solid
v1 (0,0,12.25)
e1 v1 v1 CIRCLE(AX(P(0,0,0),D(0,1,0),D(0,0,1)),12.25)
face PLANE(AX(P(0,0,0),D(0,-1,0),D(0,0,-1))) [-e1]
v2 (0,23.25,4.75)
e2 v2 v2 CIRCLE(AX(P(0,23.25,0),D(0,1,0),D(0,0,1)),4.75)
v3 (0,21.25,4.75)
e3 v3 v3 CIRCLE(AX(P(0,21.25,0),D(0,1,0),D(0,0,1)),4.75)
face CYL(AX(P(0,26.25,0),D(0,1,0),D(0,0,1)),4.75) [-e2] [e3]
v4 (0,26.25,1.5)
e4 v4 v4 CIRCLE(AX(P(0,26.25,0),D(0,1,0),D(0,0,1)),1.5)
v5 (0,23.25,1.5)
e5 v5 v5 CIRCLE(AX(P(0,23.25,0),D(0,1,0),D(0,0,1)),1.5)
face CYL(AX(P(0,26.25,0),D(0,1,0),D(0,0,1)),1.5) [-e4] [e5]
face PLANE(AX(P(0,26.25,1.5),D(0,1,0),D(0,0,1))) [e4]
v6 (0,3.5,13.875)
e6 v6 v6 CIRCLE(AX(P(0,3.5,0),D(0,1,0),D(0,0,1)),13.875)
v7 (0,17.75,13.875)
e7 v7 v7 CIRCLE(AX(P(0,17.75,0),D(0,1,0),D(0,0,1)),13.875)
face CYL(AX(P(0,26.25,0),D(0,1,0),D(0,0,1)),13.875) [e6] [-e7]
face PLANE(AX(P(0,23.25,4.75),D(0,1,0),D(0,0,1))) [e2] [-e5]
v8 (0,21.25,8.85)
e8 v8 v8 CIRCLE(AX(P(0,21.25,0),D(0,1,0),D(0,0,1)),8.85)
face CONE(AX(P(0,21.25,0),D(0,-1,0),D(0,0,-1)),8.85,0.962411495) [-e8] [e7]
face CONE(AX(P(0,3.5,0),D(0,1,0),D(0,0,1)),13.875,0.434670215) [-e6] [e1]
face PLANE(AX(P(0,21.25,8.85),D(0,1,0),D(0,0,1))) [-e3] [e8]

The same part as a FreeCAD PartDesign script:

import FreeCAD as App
import Part
import Sketcher

doc = App.newDocument("Part")
body = doc.addObject("PartDesign::Body", "Body")

# Sketch on YZ plane
sketch1 = doc.addObject("Sketcher::SketchObject", "Sketch")
body.addObject(sketch1)
sketch1.AttachmentSupport = (doc.YZ_Plane, [""])
sketch1.MapMode = "FlatFace"
sketch1.addGeometry([
    Part.LineSegment(App.Vector(0, 12.2, 0), App.Vector(0, 0, 0)),  # 0
    Part.LineSegment(App.Vector(0, 0, 0), App.Vector(26.2, 0, 0)),  # 1
    Part.LineSegment(App.Vector(26.2, 0, 0), App.Vector(26.2, 1.5, 0)),  # 2
    Part.LineSegment(App.Vector(26.2, 1.5, 0), App.Vector(23.2, 1.5, 0)),  # 3
    Part.LineSegment(App.Vector(23.2, 1.5, 0), App.Vector(23.2, 4.8, 0)),  # 4
    Part.LineSegment(App.Vector(23.2, 4.8, 0), App.Vector(21.2, 4.8, 0)),  # 5
    Part.LineSegment(App.Vector(21.2, 4.8, 0), App.Vector(21.2, 8.8, 0)),  # 6
    Part.LineSegment(App.Vector(21.2, 8.8, 0), App.Vector(17.8, 13.9, 0)),  # 7
    Part.LineSegment(App.Vector(17.8, 13.9, 0), App.Vector(3.5, 13.9, 0)),  # 8
    Part.LineSegment(App.Vector(3.5, 13.9, 0), App.Vector(0, 12.2, 0)),  # 9
], False)
sketch1.addConstraint([
    Sketcher.Constraint("Coincident", 0, 2, 1, 1),
    Sketcher.Constraint("Coincident", 1, 2, 2, 1),
    Sketcher.Constraint("Coincident", 2, 2, 3, 1),
    Sketcher.Constraint("Coincident", 3, 2, 4, 1),
    Sketcher.Constraint("Coincident", 4, 2, 5, 1),
    Sketcher.Constraint("Coincident", 5, 2, 6, 1),
    Sketcher.Constraint("Coincident", 6, 2, 7, 1),
    Sketcher.Constraint("Coincident", 7, 2, 8, 1),
    Sketcher.Constraint("Coincident", 8, 2, 9, 1),
    Sketcher.Constraint("Coincident", 9, 2, 0, 1),
    Sketcher.Constraint("Vertical", 0),
    Sketcher.Constraint("Horizontal", 1),
    Sketcher.Constraint("Vertical", 2),
    Sketcher.Constraint("Horizontal", 3),
    Sketcher.Constraint("Vertical", 4),
    Sketcher.Constraint("Horizontal", 5),
    Sketcher.Constraint("Vertical", 6),
    Sketcher.Constraint("Horizontal", 8),
    Sketcher.Constraint("Coincident", 0, 2, -1, 1),
    Sketcher.Constraint("DistanceX", 3, 2, 3, 1, 3.0),
    Sketcher.Constraint("DistanceX", 5, 2, 5, 1, 2.0),
    Sketcher.Constraint("DistanceY", 2, 1, 2, 2, 1.5),
    Sketcher.Constraint("DistanceY", 6, 1, 6, 2, 4.1),
    Sketcher.Constraint("DistanceX", 1, 1, 1, 2, 26.25),
    Sketcher.Constraint("DistanceX", 8, 2, 8, 1, 14.25),
    Sketcher.Constraint("DistanceY", 0, 2, 0, 1, 12.25),
    Sketcher.Constraint("DistanceY", 4, 1, 4, 2, 3.25),
    Sketcher.Constraint("DistanceX", -1, 1, 8, 2, 3.5),
    Sketcher.Constraint("DistanceY", -1, 1, 7, 2, 13.875),
])
revolution = doc.addObject("PartDesign::Revolution", "Revolution")
body.addObject(revolution)
revolution.Profile = sketch1
revolution.ReferenceAxis = (sketch1, ["H_Axis"])
revolution.Angle = 360

doc.recompute()
